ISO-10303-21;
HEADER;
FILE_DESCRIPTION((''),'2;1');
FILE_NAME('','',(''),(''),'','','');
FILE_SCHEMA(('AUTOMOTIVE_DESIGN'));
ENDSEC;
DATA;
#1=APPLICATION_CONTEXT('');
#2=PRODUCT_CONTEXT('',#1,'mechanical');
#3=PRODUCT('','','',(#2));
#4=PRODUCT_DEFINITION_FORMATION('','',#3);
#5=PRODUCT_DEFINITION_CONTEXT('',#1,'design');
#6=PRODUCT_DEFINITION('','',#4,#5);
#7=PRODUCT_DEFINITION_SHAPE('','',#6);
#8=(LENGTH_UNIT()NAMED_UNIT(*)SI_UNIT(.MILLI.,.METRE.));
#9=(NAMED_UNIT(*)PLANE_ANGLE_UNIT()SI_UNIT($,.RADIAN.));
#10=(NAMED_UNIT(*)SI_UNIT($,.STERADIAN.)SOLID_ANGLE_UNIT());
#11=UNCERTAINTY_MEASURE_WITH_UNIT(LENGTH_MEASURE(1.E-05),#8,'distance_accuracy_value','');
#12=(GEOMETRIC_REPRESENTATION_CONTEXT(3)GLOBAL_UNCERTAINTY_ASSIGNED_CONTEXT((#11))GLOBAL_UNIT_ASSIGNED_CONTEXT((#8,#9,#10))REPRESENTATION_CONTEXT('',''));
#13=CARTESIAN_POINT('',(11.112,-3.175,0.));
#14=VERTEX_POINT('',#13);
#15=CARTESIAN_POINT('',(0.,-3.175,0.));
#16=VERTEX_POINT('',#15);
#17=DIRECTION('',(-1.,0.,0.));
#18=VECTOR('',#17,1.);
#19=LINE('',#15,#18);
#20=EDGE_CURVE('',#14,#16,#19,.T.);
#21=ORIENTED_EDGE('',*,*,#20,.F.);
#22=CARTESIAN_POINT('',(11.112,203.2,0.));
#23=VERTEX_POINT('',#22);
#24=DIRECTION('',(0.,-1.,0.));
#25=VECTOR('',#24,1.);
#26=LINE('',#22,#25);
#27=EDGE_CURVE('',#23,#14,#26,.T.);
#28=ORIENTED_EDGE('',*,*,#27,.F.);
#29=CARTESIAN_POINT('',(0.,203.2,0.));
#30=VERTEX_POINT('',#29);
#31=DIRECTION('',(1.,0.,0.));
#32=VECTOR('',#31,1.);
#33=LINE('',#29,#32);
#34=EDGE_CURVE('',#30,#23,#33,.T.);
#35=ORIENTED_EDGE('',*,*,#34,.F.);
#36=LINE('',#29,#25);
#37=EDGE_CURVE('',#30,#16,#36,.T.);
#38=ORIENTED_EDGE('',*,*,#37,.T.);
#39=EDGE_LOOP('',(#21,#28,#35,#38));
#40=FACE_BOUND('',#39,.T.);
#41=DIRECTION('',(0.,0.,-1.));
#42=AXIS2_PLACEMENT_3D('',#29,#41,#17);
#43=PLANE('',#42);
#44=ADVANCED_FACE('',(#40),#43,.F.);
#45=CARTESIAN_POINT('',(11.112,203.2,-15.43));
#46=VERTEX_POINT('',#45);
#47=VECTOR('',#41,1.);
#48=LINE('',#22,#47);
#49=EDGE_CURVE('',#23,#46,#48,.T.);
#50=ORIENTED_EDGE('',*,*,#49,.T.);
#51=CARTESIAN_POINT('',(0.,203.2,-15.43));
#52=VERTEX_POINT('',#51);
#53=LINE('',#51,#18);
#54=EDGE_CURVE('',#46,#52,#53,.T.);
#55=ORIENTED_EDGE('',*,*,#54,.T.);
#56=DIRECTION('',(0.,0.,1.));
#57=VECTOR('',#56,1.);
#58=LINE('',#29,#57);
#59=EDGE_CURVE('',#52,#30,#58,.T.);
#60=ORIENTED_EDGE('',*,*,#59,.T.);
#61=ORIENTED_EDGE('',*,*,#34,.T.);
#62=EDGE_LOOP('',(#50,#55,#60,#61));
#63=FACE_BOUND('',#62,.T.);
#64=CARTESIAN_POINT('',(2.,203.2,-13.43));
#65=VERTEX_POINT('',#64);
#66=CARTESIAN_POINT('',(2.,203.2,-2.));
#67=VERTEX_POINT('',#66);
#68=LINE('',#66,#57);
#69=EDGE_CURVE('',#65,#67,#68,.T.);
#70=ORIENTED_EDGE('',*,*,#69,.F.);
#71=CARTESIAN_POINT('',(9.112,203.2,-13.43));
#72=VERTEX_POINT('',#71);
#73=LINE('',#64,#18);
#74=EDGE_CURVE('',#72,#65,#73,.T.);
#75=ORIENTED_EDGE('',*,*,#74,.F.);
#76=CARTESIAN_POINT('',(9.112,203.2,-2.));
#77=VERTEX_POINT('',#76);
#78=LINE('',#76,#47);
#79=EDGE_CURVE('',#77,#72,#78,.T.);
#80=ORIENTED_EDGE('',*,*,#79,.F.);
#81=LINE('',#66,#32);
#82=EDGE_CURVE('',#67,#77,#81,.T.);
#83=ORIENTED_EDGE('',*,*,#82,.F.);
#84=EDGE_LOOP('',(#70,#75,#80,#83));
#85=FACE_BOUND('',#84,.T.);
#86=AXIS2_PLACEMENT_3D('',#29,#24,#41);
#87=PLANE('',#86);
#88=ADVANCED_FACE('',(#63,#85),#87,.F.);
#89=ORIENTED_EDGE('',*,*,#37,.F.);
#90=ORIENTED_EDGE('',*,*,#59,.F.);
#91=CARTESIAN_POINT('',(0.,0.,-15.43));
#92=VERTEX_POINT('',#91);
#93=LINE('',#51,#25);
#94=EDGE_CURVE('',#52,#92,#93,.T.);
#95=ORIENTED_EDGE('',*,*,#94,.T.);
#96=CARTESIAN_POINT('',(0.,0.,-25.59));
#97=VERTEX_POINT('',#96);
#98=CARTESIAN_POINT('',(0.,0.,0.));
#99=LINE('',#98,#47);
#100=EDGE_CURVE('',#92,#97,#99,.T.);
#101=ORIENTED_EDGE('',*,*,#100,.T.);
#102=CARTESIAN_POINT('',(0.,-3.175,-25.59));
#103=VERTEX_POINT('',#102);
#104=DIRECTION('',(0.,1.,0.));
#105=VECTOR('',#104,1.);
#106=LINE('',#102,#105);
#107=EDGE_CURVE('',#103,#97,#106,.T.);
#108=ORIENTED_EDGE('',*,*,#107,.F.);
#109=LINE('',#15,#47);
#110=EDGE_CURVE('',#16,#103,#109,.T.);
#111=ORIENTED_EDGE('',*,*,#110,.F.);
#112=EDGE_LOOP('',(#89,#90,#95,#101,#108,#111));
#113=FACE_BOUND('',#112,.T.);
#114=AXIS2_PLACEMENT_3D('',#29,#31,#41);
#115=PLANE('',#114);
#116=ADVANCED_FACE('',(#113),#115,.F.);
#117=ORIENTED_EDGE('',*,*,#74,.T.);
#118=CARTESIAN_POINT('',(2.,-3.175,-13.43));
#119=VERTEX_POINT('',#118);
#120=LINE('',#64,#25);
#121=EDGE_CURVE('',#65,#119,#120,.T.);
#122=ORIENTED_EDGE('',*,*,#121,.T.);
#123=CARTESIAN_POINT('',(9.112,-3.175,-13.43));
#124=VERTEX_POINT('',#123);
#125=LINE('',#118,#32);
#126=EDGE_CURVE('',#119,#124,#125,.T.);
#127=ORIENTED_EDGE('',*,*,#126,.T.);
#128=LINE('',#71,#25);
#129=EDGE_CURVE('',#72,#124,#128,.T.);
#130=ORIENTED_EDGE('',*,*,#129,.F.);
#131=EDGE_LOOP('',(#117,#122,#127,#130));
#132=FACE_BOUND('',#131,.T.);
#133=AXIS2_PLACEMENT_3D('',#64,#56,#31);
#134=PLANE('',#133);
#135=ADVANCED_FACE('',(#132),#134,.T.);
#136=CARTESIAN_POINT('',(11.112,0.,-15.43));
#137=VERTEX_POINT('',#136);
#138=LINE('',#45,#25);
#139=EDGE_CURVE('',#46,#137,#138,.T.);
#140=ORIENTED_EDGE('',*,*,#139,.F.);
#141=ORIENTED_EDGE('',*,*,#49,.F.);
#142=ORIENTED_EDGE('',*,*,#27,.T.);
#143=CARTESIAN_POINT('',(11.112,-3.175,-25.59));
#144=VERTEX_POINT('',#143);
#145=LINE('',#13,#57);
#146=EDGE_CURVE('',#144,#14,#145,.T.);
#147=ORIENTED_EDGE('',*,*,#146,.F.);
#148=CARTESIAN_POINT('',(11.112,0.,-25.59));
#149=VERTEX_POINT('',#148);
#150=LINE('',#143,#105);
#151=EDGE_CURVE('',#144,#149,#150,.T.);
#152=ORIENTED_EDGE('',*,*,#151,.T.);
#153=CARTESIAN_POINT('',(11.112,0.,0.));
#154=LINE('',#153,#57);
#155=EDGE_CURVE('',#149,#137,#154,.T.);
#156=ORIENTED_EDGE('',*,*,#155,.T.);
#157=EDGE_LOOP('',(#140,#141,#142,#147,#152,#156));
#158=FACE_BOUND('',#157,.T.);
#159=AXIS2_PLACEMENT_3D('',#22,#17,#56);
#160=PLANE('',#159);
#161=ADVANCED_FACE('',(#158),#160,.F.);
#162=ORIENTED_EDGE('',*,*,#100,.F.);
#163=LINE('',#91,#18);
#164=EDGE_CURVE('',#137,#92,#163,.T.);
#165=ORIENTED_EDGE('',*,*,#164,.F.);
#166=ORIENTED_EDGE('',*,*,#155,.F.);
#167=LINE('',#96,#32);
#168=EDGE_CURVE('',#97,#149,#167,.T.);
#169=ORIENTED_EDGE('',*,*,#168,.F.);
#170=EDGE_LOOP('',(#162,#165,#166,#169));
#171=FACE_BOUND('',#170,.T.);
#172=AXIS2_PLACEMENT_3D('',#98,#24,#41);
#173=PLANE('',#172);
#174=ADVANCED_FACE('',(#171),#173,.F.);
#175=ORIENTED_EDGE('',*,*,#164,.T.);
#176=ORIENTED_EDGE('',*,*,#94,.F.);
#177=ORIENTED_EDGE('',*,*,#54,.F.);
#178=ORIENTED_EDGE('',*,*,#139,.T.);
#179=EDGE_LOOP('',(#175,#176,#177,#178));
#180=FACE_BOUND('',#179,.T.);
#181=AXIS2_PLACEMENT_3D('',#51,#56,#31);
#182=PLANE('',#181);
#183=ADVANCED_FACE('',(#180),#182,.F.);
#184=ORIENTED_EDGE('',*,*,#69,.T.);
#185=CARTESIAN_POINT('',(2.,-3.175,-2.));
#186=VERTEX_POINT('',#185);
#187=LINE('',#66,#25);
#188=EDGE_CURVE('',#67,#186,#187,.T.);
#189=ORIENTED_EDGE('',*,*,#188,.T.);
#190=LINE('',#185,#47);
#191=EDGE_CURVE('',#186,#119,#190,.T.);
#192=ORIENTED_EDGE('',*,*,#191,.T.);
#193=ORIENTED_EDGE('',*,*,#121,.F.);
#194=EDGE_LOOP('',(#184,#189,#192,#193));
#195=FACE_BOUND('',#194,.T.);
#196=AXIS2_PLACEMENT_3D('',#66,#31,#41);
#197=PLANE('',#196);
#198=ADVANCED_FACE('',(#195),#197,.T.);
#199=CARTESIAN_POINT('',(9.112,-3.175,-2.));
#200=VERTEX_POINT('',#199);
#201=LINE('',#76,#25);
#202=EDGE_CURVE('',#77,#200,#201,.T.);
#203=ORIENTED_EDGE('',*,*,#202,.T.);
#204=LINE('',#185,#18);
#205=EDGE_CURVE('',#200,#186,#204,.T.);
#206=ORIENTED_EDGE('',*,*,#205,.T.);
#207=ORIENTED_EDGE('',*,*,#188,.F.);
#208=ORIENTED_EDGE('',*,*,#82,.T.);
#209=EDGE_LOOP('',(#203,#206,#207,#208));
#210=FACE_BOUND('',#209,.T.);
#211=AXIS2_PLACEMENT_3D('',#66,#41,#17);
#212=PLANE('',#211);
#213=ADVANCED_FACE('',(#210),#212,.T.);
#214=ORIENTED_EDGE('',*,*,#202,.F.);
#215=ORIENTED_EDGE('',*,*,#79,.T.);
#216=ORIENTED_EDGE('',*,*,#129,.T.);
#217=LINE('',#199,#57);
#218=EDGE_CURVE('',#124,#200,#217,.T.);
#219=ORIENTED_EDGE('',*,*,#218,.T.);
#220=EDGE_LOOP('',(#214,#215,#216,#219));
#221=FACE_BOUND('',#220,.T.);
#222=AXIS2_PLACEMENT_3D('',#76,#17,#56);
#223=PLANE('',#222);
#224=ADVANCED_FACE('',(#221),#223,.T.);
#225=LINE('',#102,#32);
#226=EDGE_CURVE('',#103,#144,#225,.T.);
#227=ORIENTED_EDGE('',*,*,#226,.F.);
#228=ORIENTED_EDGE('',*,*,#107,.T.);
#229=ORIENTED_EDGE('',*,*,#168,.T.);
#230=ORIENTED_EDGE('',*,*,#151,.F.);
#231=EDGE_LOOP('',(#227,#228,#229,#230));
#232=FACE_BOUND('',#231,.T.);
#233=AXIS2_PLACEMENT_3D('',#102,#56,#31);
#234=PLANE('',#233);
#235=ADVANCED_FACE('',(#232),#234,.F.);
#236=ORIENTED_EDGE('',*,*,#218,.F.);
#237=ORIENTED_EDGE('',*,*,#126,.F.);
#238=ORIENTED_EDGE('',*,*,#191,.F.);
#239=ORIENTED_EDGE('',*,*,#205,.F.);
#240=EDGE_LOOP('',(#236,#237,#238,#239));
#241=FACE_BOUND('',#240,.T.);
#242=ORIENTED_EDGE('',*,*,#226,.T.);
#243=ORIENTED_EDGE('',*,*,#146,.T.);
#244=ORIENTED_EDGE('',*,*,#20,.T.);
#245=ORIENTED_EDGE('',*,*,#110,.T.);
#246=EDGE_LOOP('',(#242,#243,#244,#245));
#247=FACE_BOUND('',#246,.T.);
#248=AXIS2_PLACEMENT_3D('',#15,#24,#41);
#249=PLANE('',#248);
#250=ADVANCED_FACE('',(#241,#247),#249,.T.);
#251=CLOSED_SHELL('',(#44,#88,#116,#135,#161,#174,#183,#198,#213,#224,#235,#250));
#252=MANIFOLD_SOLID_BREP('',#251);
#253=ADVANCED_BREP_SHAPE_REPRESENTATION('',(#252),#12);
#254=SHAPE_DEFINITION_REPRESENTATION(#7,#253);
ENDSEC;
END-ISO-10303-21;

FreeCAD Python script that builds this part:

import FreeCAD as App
import Part
import Sketcher

V = App.Vector
Q = App.Units.Quantity


def add_polygon(sketch, points):
    """Adds a closed chain of lines whose ends are joined by coincident constraints."""
    first, n = sketch.GeometryCount, len(points)
    for a, b in zip(points, points[1:] + points[:1]):
        sketch.addGeometry(Part.LineSegment(App.Vector(*a, 0), App.Vector(*b, 0)), False)
    for i in range(n):
        sketch.addConstraint(Sketcher.Constraint("Coincident", first + i, 2, first + (i + 1) % n, 1))

doc = App.newDocument("Part")
body = doc.addObject("PartDesign::Body", "Body")

# Sketch on XZ plane
sketch1 = body.newObject("Sketcher::SketchObject", "Sketch")
sketch1.AttachmentSupport = (doc.getObject("XZ_Plane"), [""])
sketch1.MapMode = "FlatFace"
add_polygon(sketch1, [(0, -15), (0, 0), (11, 0), (11, -15)])  # lines 0-3
add_polygon(sketch1, [(9, -2), (2, -2), (2, -13), (9, -13)])  # lines 4-7
sketch1.addConstraint([
    Sketcher.Constraint("Vertical", 0),
    Sketcher.Constraint("Horizontal", 1),
    Sketcher.Constraint("Vertical", 2),
    Sketcher.Constraint("Horizontal", 3),
    Sketcher.Constraint("Horizontal", 4),
    Sketcher.Constraint("Vertical", 5),
    Sketcher.Constraint("Horizontal", 6),
    Sketcher.Constraint("Vertical", 7),
    Sketcher.Constraint("Coincident", 0, 2, -1, 1),
    Sketcher.Constraint("DistanceX", 4, 2, 4, 1, Q("0.28 in")),
    Sketcher.Constraint("DistanceY", 5, 2, 5, 1, Q("0.45 in")),
    Sketcher.Constraint("DistanceX", 1, 1, 1, 2, Q("11.112 mm")),
    Sketcher.Constraint("DistanceY", 0, 1, 0, 2, Q("15.43 mm")),
    Sketcher.Constraint("DistanceX", -1, 1, 4, 2, Q("2 mm")),
    Sketcher.Constraint("DistanceY", 4, 2, -1, 1, Q("2 mm")),
])
pad1 = body.newObject("PartDesign::Pad", "Pad")
pad1.Profile = sketch1
pad1.Length = Q("8 in")
pad1.Reversed = True

# Sketch on XZ plane
sketch2 = body.newObject("Sketcher::SketchObject", "Sketch001")
sketch2.AttachmentSupport = (doc.getObject("XZ_Plane"), [""])
sketch2.MapMode = "FlatFace"
add_polygon(sketch2, [(0, 0), (0, -26), (11, -26), (11, 0)])  # lines 0-3
add_polygon(sketch2, [(9, -13), (2, -13), (2, -2), (9, -2)])  # lines 4-7
sketch2.addConstraint([
    Sketcher.Constraint("Vertical", 0),
    Sketcher.Constraint("Horizontal", 1),
    Sketcher.Constraint("Vertical", 2),
    Sketcher.Constraint("Horizontal", 3),
    Sketcher.Constraint("Horizontal", 4),
    Sketcher.Constraint("Vertical", 5),
    Sketcher.Constraint("Horizontal", 6),
    Sketcher.Constraint("Vertical", 7),
    Sketcher.Constraint("Coincident", 3, 2, -1, 1),
    Sketcher.Constraint("DistanceX", 4, 2, 4, 1, Q("0.28 in")),
    Sketcher.Constraint("DistanceY", 5, 1, 5, 2, Q("0.45 in")),
    Sketcher.Constraint("DistanceX", 1, 1, 1, 2, Q("11.112 mm")),
    Sketcher.Constraint("DistanceY", 0, 2, 0, 1, Q("25.59 mm")),
    Sketcher.Constraint("DistanceX", -1, 1, 4, 2, Q("2 mm")),
    Sketcher.Constraint("DistanceY", 4, 2, -1, 1, Q("13.43 mm")),
])
pad2 = body.newObject("PartDesign::Pad", "Pad001")
pad2.Profile = sketch2
pad2.Length = Q("0.125 in")

doc.recompute()
